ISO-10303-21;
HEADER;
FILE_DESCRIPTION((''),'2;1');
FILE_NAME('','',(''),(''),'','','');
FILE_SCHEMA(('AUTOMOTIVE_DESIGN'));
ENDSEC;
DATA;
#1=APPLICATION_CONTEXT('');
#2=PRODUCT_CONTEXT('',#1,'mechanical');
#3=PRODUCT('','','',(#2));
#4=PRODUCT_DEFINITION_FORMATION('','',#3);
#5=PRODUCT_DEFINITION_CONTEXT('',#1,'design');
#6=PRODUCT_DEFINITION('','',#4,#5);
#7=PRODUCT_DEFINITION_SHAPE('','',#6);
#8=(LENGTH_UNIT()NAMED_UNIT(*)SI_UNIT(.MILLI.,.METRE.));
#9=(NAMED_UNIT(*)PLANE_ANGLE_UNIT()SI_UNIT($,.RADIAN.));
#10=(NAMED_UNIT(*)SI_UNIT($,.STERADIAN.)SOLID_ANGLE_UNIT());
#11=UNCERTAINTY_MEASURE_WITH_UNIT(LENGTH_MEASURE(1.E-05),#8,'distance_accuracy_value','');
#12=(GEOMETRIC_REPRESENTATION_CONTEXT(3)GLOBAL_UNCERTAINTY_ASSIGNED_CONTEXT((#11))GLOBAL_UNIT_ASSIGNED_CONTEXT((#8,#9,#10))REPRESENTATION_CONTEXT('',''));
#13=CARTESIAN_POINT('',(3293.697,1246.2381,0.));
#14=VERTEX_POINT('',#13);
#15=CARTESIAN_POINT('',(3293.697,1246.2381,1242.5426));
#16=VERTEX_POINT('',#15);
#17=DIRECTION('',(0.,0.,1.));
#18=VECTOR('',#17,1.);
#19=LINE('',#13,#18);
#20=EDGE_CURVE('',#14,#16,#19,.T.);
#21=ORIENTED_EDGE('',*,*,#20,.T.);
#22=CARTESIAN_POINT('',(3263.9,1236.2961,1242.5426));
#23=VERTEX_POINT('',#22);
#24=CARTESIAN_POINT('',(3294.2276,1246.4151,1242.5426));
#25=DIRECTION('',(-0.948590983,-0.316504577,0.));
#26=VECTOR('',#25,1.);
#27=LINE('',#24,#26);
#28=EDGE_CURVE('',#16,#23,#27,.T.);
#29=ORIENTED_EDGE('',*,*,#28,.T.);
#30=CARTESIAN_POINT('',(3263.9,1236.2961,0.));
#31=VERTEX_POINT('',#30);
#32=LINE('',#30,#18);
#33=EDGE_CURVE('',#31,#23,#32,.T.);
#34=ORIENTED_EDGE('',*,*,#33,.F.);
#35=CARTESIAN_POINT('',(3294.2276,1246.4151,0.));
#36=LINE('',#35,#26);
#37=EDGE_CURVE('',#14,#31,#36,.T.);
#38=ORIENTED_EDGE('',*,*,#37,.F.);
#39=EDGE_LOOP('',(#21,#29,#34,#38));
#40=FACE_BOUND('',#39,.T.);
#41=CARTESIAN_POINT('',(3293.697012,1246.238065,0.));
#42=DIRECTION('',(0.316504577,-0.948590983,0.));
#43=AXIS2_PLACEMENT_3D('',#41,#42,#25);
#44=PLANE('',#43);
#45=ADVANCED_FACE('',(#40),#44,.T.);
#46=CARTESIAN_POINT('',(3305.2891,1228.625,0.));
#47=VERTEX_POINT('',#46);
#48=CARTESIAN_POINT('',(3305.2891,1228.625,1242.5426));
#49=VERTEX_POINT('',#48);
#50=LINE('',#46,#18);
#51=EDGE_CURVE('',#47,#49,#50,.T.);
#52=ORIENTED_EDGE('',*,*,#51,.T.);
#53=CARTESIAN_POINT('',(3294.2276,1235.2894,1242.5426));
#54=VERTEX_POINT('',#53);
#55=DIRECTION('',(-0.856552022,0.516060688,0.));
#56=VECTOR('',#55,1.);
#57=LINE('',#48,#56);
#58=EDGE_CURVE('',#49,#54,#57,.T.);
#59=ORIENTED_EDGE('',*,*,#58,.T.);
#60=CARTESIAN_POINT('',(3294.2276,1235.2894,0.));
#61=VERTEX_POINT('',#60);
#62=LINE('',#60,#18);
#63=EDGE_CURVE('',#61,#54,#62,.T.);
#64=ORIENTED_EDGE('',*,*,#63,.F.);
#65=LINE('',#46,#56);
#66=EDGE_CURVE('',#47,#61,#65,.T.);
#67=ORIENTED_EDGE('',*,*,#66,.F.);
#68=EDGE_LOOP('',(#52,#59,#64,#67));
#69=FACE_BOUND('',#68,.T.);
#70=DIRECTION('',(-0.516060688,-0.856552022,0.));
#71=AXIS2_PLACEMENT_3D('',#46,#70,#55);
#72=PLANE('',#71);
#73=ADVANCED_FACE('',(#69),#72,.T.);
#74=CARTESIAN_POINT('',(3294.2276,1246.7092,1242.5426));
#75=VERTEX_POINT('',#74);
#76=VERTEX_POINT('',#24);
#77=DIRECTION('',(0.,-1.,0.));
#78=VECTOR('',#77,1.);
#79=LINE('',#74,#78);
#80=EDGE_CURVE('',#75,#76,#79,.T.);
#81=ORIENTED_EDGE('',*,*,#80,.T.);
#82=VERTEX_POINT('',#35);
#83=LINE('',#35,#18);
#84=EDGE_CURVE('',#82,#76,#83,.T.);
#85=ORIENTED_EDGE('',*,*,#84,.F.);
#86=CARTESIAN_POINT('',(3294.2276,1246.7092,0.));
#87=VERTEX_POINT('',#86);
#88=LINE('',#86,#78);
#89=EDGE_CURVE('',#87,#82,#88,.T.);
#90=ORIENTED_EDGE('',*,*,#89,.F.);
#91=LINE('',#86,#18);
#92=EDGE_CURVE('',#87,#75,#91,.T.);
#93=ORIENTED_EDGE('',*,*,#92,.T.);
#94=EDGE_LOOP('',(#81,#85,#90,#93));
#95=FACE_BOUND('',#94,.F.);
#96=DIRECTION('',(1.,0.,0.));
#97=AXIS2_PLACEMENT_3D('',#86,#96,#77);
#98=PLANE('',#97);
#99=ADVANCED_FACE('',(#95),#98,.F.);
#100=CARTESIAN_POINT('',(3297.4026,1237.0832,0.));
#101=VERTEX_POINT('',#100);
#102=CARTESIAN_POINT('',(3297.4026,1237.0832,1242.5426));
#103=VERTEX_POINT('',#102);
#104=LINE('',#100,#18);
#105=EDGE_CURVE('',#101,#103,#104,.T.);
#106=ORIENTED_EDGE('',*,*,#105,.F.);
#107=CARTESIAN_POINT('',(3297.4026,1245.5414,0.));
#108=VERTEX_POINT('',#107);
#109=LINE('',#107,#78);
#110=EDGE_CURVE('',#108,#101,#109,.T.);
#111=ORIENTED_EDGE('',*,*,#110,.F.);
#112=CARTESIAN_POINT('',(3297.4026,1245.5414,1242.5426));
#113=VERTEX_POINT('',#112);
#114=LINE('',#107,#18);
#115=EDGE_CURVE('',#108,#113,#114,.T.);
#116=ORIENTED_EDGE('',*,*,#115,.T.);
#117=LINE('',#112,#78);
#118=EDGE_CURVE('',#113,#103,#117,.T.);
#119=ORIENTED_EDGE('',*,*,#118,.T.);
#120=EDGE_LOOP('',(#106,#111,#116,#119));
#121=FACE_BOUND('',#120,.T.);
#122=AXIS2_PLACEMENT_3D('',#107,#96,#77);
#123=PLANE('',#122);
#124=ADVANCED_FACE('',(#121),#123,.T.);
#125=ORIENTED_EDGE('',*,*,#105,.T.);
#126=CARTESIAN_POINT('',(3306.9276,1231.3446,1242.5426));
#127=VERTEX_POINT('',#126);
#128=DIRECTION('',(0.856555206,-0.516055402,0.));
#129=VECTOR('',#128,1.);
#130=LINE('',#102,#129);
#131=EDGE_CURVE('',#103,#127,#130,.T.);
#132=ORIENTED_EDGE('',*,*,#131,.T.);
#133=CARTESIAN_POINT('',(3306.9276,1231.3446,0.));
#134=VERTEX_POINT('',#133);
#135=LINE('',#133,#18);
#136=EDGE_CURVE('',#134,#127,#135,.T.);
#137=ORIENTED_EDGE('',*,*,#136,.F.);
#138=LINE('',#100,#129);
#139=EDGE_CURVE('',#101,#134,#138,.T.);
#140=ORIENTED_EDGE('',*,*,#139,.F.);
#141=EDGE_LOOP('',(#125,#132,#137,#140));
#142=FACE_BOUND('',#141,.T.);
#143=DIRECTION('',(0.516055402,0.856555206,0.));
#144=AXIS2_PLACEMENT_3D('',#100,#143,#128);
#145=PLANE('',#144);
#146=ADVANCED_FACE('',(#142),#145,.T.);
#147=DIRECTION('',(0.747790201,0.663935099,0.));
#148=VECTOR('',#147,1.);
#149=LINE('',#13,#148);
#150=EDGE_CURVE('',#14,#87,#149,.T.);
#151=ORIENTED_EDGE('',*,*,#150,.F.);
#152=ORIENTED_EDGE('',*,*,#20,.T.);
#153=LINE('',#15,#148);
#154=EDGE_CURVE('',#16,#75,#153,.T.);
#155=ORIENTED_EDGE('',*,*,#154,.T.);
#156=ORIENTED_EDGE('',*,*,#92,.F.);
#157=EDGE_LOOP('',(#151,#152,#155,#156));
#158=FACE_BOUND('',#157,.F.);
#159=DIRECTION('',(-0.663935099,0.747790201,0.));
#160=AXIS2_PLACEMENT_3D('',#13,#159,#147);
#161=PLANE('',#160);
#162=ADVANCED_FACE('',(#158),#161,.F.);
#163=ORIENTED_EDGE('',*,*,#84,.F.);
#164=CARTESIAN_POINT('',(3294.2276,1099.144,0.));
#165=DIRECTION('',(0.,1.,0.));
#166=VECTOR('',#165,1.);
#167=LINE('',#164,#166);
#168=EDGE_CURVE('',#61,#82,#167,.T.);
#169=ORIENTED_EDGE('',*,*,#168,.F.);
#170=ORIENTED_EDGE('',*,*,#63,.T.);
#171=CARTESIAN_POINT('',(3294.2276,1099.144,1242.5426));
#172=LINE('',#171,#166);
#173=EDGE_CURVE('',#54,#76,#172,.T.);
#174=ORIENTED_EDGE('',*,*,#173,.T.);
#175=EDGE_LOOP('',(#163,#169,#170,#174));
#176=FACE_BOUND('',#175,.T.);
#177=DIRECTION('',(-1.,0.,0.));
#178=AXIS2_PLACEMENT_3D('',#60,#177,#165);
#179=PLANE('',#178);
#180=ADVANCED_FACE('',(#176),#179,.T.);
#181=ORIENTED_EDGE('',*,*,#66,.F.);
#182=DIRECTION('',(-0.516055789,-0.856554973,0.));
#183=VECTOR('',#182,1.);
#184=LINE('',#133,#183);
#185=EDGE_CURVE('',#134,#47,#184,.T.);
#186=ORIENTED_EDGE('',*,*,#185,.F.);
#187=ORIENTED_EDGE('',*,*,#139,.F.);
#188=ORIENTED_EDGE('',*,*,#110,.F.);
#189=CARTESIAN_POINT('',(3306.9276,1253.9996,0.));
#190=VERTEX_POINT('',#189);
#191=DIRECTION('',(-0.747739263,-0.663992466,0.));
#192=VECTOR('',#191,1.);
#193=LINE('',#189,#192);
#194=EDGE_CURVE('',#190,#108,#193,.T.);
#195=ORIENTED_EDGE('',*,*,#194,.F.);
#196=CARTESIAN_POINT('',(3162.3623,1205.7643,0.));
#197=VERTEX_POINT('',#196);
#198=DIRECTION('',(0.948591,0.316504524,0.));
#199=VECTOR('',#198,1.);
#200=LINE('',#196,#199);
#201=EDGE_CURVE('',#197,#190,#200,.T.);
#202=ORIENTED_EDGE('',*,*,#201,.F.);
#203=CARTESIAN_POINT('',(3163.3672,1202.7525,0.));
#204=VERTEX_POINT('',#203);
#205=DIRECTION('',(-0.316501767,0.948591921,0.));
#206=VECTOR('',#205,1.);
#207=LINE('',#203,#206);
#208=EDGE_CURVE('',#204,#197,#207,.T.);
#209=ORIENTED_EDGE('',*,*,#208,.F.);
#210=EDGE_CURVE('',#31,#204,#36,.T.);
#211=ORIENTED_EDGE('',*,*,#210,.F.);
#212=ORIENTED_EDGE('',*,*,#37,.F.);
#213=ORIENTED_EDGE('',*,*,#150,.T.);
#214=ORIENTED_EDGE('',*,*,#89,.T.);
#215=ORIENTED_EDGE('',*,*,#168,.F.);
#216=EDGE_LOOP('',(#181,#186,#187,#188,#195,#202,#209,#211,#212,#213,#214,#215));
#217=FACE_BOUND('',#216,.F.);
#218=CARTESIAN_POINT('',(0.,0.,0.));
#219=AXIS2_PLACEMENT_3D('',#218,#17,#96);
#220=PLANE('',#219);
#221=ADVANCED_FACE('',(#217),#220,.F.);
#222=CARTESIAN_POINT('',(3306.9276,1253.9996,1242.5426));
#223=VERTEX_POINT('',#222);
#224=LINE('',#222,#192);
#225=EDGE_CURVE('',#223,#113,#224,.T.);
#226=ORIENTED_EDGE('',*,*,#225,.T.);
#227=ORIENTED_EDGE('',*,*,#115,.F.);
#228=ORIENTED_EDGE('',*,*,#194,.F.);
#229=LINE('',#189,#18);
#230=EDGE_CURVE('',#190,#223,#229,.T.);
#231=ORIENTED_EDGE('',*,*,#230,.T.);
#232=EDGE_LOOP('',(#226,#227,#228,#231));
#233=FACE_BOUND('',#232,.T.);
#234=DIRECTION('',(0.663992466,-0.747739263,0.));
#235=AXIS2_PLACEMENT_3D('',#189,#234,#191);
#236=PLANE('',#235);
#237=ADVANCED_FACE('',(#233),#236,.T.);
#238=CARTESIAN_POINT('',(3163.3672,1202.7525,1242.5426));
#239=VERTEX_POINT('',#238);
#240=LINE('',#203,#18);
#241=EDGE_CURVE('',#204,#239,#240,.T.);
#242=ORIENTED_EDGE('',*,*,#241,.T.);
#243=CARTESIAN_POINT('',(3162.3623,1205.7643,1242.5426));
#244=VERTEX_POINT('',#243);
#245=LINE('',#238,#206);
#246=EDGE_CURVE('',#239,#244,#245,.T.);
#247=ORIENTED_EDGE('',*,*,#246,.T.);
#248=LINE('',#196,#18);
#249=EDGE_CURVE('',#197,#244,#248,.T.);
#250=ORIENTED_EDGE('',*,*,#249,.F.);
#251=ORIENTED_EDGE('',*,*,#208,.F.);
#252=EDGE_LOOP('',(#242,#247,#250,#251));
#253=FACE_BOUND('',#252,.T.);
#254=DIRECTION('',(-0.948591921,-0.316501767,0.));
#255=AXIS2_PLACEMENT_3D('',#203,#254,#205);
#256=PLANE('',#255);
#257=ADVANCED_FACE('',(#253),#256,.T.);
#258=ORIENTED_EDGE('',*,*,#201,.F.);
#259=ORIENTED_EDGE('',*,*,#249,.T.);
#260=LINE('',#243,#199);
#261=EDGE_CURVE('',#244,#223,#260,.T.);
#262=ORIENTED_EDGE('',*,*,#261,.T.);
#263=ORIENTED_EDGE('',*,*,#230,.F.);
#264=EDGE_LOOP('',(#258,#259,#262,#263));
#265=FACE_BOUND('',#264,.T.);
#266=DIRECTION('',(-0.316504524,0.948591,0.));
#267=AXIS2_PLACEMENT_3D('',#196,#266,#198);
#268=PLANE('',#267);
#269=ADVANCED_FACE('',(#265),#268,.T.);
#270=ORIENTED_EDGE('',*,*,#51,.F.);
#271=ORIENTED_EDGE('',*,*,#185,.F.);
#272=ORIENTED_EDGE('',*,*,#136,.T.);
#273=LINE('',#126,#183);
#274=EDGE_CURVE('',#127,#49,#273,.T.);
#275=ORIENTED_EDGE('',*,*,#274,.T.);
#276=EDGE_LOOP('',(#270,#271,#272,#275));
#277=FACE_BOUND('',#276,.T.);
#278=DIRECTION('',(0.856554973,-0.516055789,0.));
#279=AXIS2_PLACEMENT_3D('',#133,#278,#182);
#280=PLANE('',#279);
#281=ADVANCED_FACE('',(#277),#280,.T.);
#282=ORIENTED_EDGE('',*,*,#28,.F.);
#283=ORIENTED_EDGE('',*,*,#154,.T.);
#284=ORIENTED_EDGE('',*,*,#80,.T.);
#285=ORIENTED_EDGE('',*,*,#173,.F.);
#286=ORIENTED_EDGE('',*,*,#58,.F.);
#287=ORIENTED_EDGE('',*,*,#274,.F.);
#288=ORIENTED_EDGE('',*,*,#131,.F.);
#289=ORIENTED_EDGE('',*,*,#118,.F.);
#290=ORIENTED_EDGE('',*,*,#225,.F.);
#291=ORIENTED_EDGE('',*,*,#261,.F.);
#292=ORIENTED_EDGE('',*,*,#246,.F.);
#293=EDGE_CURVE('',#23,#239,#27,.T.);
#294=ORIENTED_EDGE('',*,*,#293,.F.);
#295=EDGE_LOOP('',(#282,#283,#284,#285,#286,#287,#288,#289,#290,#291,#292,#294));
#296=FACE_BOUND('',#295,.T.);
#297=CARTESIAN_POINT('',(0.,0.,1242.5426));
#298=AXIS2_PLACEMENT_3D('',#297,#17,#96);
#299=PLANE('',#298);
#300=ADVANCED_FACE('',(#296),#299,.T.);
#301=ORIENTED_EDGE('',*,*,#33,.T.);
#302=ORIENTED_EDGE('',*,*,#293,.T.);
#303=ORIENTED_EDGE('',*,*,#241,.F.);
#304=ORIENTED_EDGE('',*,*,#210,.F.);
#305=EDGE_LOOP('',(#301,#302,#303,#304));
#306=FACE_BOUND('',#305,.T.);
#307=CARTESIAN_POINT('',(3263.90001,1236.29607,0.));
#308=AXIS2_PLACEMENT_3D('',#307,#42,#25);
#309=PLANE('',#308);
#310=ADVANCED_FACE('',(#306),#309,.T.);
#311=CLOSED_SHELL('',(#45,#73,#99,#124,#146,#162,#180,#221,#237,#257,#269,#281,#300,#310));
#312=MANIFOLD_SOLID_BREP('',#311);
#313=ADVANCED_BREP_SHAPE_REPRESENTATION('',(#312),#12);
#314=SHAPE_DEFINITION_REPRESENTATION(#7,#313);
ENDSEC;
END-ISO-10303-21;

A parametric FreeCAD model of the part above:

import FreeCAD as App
import Part
import Sketcher
Q = App.Units.Quantity


def add_polygon(sketch, points):
    """Adds a closed chain of lines whose ends are joined by coincident constraints."""
    first, n = sketch.GeometryCount, len(points)
    for a, b in zip(points, points[1:] + points[:1]):
        sketch.addGeometry(Part.LineSegment(App.Vector(*a, 0), App.Vector(*b, 0)), False)
    for i in range(n):
        sketch.addConstraint(Sketcher.Constraint("Coincident", first + i, 2, first + (i + 1) % n, 1))

doc = App.newDocument("Part")
body = doc.addObject("PartDesign::Body", "Body")

sketch1 = body.newObject("Sketcher::SketchObject", "Sketch")
sketch1.AttachmentSupport = (doc.getObject("XY_Plane"), [""])
sketch1.MapMode = "FlatFace"
add_polygon(sketch1, [(3294.2, 1246.7), (3294.2, 1235.3), (3305.3, 1228.6), (3306.9, 1231.3), (3297.4, 1237.1), (3297.4, 1245.5), (3306.9, 1254), (3162.4, 1205.8), (3163.4, 1202.8), (3293.7, 1246.2)])
sketch1.addConstraint(Sketcher.Constraint("Vertical", 0))
sketch1.addConstraint(Sketcher.Constraint("Vertical", 4))
sketch1.addConstraint(Sketcher.Constraint("Perpendicular", 1, 2))
sketch1.addConstraint(Sketcher.Constraint("Perpendicular", 2, 3))
sketch1.addConstraint(Sketcher.Constraint("Perpendicular", 6, 7))
sketch1.addConstraint(Sketcher.Constraint("Perpendicular", 7, 8))
sketch1.addConstraint(Sketcher.Constraint("Parallel", 5, 9))
sketch1.addConstraint(Sketcher.Constraint("Vertical", 2, 2, 5, 2))
sketch1.addConstraint(Sketcher.Constraint("Equal", 2, 7))
sketch1.addConstraint(Sketcher.Constraint("Distance", 6, Q("6 in")))
sketch1.addConstraint(Sketcher.Constraint("DistanceX", 0, 2, 2, 2, Q("0.5 in")))
sketch1.addConstraint(Sketcher.Constraint("DistanceY", 4, 1, 4, 2, Q("0.333 in")))
sketch1.addConstraint(Sketcher.Constraint("Distance", 2, Q("0.125 in")))
sketch1.addConstraint(Sketcher.Constraint("DistanceX", 0, 2, 3, 2, Q("0.125 in")))
sketch1.addConstraint(Sketcher.Constraint("DistanceY", 1, 2, 3, 2, Q("0.333 in")))
sketch1.addConstraint(Sketcher.Constraint("DistanceY", 4, 2, 5, 2, Q("0.333 in")))
sketch1.addConstraint(Sketcher.Constraint("DistanceY", 0, 2, 0, 1, Q("0.4496 in")))
sketch1.addConstraint(Sketcher.Constraint("DistanceX", -1, 1, 0, 2, Q("129.694 in")))
sketch1.addConstraint(Sketcher.Constraint("DistanceX", -1, 1, 8, 2, Q("129.6731 in")))
sketch1.addConstraint(Sketcher.Constraint("DistanceY", -1, 1, 8, 2, Q("49.0645 in")))
pad1 = body.newObject("PartDesign::Pad", "Pad")
pad1.Profile = sketch1
pad1.Length = Q("48.919 in")

doc.recompute()
